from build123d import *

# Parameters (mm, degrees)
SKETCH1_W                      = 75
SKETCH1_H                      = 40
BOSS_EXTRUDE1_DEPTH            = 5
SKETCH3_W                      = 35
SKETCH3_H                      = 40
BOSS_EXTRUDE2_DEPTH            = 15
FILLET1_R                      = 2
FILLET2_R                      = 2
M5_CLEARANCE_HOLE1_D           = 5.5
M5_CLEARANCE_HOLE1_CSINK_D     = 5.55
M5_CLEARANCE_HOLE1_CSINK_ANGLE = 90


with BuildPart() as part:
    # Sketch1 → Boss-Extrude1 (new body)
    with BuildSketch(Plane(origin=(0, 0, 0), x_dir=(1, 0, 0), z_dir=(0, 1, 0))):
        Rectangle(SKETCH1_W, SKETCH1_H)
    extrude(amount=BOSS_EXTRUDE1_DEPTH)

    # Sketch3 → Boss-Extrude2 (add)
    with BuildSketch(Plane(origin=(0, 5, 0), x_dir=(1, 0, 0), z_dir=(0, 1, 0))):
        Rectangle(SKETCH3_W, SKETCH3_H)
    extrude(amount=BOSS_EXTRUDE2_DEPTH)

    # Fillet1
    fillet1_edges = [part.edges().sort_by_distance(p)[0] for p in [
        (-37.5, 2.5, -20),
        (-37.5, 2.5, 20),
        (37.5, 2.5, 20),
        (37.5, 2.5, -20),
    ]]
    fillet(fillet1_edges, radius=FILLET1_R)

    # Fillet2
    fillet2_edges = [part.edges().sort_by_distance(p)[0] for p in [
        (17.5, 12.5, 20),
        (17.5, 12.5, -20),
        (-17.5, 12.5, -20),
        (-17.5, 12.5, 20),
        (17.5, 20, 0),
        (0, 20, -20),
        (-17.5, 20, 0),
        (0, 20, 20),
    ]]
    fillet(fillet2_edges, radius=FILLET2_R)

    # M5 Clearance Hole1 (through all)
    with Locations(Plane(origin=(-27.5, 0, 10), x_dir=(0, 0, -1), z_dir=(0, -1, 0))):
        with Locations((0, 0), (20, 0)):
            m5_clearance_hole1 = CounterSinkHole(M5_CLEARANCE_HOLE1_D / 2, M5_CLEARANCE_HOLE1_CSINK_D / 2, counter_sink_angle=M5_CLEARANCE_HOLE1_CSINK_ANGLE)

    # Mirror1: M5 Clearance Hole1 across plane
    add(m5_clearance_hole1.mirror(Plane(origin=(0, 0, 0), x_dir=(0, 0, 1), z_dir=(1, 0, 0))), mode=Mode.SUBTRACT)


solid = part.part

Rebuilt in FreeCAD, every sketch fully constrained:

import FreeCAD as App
import Part
import Sketcher

V = App.Vector


def edges_at(feature, points):
    """Names of the edges that pass closest to the given points."""
    edges = feature.Shape.Edges
    near = lambda p: min(range(len(edges)), key=lambda i: edges[i].distToShape(Part.Vertex(*p))[0])
    return sorted({f"Edge{near(p) + 1}" for p in points})

doc = App.newDocument("Part")
params = doc.addObject("Spreadsheet::Sheet", "Params")
for row, (alias, value) in enumerate([
    ("sketch1_width", "75 mm"),
    ("sketch1_height", "40 mm"),
    ("pad1_length", "5 mm"),
    ("sketch2_width", "35 mm"),
    ("sketch2_height", "40 mm"),
    ("pad2_length", "15 mm"),
    ("fillet_radius", "2 mm"),
    ("fillet2_radius", "2 mm"),
    ("sketch3_diameter", "5.5 mm"),
    ("hole_diameter", "5.5 mm"),
    ("hole_csink_diameter", "5.55 mm"),
], start=1):
    params.set(f"A{row}", alias)
    params.set(f"B{row}", "=" + value)
    params.setAlias(f"B{row}", alias)

body = doc.addObject("PartDesign::Body", "Body")

# Sketch on XZ plane
sketch1 = body.newObject("Sketcher::SketchObject", "Sketch")
sketch1.AttachmentSupport = (doc.getObject("XZ_Plane"), [""])
sketch1.MapMode = "FlatFace"
sketch1.addGeometry([
    Part.LineSegment(V(-37.5, -20, 0), V(-37.5, 20, 0)),
    Part.LineSegment(V(-37.5, 20, 0), V(37.5, 20, 0)),
    Part.LineSegment(V(37.5, 20, 0), V(37.5, -20, 0)),
    Part.LineSegment(V(37.5, -20, 0), V(-37.5, -20, 0)),
], False)
sketch1.addConstraint([
    Sketcher.Constraint("Coincident", 0, 2, 1, 1),
    Sketcher.Constraint("Coincident", 1, 2, 2, 1),
    Sketcher.Constraint("Coincident", 2, 2, 3, 1),
    Sketcher.Constraint("Coincident", 3, 2, 0, 1),
    Sketcher.Constraint("Vertical", 0),
    Sketcher.Constraint("Horizontal", 1),
    Sketcher.Constraint("Vertical", 2),
    Sketcher.Constraint("Horizontal", 3),
    Sketcher.Constraint("Symmetric", 0, 2, 2, 2, -1, 1),
    Sketcher.Constraint("DistanceX", 1, 1, 1, 2, 75.0),
    Sketcher.Constraint("DistanceY", 0, 1, 0, 2, 40.0),
])
sketch1.setExpression("Constraints[9]", "Params.sketch1_width")
sketch1.setExpression("Constraints[10]", "Params.sketch1_height")
pad1 = body.newObject("PartDesign::Pad", "Pad")
pad1.Profile = sketch1
pad1.setExpression("Length", "Params.pad1_length")
pad1.Reversed = True

# Sketch on XZ plane
sketch2 = body.newObject("Sketcher::SketchObject", "Sketch001")
sketch2.AttachmentSupport = (doc.getObject("XZ_Plane"), [""])
sketch2.MapMode = "FlatFace"
sketch2.AttachmentOffset = App.Placement(V(0, 0, -5), App.Rotation())
sketch2.addGeometry([
    Part.LineSegment(V(-17.5, -20, 0), V(-17.5, 20, 0)),
    Part.LineSegment(V(-17.5, 20, 0), V(17.5, 20, 0)),
    Part.LineSegment(V(17.5, 20, 0), V(17.5, -20, 0)),
    Part.LineSegment(V(17.5, -20, 0), V(-17.5, -20, 0)),
], False)
sketch2.addConstraint([
    Sketcher.Constraint("Coincident", 0, 2, 1, 1),
    Sketcher.Constraint("Coincident", 1, 2, 2, 1),
    Sketcher.Constraint("Coincident", 2, 2, 3, 1),
    Sketcher.Constraint("Coincident", 3, 2, 0, 1),
    Sketcher.Constraint("Vertical", 0),
    Sketcher.Constraint("Horizontal", 1),
    Sketcher.Constraint("Vertical", 2),
    Sketcher.Constraint("Horizontal", 3),
    Sketcher.Constraint("Symmetric", 0, 2, 2, 2, -1, 1),
    Sketcher.Constraint("DistanceX", 1, 1, 1, 2, 35.0),
    Sketcher.Constraint("DistanceY", 0, 1, 0, 2, 40.0),
])
sketch2.setExpression("Constraints[9]", "Params.sketch2_width")
sketch2.setExpression("Constraints[10]", "Params.sketch2_height")
pad2 = body.newObject("PartDesign::Pad", "Pad001")
pad2.Profile = sketch2
pad2.setExpression("Length", "Params.pad2_length")
pad2.Reversed = True
doc.recompute()

fillet = body.newObject("PartDesign::Fillet", "Fillet")
fillet.Base = (pad2, edges_at(pad2, [
    (-37.5, 2.5, -20),
    (-37.5, 2.5, 20),
    (37.5, 2.5, 20),
    (37.5, 2.5, -20),
]))
fillet.setExpression("Radius", "Params.fillet_radius")
doc.recompute()

fillet2 = body.newObject("PartDesign::Fillet", "Fillet001")
fillet2.Base = (fillet, edges_at(fillet, [
    (17.5, 12.5, 20),
    (17.5, 12.5, -20),
    (-17.5, 12.5, -20),
    (-17.5, 12.5, 20),
    (17.5, 20, 0),
    (0, 20, -20),
    (-17.5, 20, 0),
    (0, 20, 20),
]))
fillet2.setExpression("Radius", "Params.fillet2_radius")

# Sketch on XZ plane
sketch3 = body.newObject("Sketcher::SketchObject", "Sketch002")
sketch3.AttachmentSupport = (doc.getObject("XZ_Plane"), [""])
sketch3.MapMode = "FlatFace"
sketch3.addGeometry([
    Part.Circle(V(-27.5, 10, 0), V(0, 0, 1), 2.75),
    Part.Circle(V(-27.5, -10, 0), V(0, 0, 1), 2.75),
], False)
sketch3.addConstraint([
    Sketcher.Constraint("Equal", 0, 1),
    Sketcher.Constraint("Symmetric", 0, 3, 1, 3, -1),
    Sketcher.Constraint("Diameter", 0, 5.5),
    Sketcher.Constraint("DistanceY", -1, 1, 0, 3, 10.0),
    Sketcher.Constraint("DistanceX", 0, 3, -1, 1, 27.5),
])
sketch3.setExpression("Constraints[2]", "Params.sketch3_diameter")
doc.recompute()
hole = body.newObject("PartDesign::Hole", "Hole")
hole.Profile = sketch3
hole.ThreadType = "None"
hole.setExpression("Diameter", "Params.hole_diameter")
hole.DepthType = "ThroughAll"
hole.HoleCutType = "Countersink"
hole.setExpression("HoleCutDiameter", "Params.hole_csink_diameter")
hole.HoleCutCountersinkAngle = 90
doc.recompute()

mirrored = body.newObject("PartDesign::Mirrored", "Mirrored")
mirrored.Originals = [hole]
mirrored.MirrorPlane = (doc.getObject("YZ_Plane"), [""])
body.Tip = mirrored

doc.recompute()
